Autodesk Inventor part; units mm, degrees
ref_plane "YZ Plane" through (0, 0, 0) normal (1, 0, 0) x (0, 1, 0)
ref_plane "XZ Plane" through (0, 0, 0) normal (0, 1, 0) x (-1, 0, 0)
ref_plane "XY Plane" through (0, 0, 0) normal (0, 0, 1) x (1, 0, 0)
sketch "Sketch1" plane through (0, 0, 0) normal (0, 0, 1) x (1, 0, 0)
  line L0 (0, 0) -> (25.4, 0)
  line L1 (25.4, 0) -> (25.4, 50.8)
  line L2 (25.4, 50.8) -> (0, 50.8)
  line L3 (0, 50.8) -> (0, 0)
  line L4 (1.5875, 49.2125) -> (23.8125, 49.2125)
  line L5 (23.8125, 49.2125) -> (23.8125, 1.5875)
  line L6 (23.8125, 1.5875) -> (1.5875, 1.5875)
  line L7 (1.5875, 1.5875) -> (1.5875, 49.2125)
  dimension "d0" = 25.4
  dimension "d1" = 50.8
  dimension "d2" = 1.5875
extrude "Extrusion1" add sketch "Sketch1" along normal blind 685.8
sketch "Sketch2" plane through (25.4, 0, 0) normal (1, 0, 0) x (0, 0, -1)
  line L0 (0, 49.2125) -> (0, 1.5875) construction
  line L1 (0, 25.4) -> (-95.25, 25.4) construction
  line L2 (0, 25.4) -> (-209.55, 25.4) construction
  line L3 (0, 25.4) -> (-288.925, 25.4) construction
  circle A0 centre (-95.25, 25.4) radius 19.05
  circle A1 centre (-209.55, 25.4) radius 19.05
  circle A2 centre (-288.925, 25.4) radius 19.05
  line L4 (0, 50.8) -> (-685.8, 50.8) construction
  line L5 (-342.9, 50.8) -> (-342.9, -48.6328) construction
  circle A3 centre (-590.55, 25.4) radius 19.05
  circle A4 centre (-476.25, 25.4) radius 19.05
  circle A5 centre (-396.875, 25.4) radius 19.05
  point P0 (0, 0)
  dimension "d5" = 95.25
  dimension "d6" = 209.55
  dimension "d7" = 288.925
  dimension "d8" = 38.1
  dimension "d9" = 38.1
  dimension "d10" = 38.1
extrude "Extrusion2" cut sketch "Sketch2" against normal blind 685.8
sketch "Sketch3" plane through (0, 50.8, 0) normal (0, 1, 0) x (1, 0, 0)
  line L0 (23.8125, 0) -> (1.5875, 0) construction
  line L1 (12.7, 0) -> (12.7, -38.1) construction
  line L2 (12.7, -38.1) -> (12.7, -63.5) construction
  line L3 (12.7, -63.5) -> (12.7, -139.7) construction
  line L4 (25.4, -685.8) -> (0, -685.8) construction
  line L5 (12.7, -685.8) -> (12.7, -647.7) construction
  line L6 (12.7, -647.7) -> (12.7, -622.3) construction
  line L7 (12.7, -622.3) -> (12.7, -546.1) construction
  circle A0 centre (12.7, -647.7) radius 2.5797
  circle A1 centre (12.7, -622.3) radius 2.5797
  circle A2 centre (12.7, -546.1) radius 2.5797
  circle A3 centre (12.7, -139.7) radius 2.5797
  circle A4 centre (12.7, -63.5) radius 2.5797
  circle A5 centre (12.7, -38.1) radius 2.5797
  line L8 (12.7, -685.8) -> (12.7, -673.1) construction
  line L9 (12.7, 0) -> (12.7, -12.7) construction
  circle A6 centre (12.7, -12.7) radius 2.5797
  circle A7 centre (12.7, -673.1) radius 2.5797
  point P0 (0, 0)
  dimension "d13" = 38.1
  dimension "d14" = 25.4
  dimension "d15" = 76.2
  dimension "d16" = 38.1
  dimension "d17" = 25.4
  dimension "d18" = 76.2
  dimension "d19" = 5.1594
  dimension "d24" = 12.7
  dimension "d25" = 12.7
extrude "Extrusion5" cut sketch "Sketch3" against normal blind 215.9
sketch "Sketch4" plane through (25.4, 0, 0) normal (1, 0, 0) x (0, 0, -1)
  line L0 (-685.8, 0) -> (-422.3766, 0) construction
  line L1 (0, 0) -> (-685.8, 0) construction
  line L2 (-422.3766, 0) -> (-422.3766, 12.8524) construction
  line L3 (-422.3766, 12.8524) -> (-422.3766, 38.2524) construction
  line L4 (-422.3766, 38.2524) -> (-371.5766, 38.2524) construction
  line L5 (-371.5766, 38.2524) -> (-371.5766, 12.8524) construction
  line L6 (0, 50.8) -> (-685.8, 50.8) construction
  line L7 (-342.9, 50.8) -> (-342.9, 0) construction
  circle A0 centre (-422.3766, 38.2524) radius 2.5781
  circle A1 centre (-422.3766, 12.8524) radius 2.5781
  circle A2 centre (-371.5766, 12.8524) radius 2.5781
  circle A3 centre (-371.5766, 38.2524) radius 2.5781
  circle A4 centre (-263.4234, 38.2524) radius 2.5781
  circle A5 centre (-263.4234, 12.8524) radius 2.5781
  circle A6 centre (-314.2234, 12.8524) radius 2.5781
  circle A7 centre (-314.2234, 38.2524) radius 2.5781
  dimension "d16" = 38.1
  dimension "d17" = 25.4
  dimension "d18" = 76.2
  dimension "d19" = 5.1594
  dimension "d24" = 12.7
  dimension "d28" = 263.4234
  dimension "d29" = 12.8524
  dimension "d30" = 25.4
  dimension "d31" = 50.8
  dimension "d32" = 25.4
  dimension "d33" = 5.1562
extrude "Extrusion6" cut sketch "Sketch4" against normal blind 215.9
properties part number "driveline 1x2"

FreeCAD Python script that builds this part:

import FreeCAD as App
import Part
import Sketcher

V = App.Vector
Q = App.Units.Quantity


def add_polygon(sketch, points):
    """Adds a closed chain of lines whose ends are joined by coincident constraints."""
    first, n = sketch.GeometryCount, len(points)
    for a, b in zip(points, points[1:] + points[:1]):
        sketch.addGeometry(Part.LineSegment(App.Vector(*a, 0), App.Vector(*b, 0)), False)
    for i in range(n):
        sketch.addConstraint(Sketcher.Constraint("Coincident", first + i, 2, first + (i + 1) % n, 1))

doc = App.newDocument("Part")
body = doc.addObject("PartDesign::Body", "Body")

# Sketch on XY plane
sketch1 = doc.addObject("Sketcher::SketchObject", "Sketch")
body.addObject(sketch1)
sketch1.AttachmentSupport = (doc.XY_Plane, [""])
sketch1.MapMode = "FlatFace"
add_polygon(sketch1, [(0, 51), (0, 0), (25, 0), (25, 51)])  # lines 0-3
add_polygon(sketch1, [(2, 2), (2, 49), (24, 49), (24, 2)])  # lines 4-7
sketch1.addConstraint([
    Sketcher.Constraint("Vertical", 0),
    Sketcher.Constraint("Horizontal", 1),
    Sketcher.Constraint("Vertical", 2),
    Sketcher.Constraint("Horizontal", 3),
    Sketcher.Constraint("Vertical", 4),
    Sketcher.Constraint("Horizontal", 5),
    Sketcher.Constraint("Vertical", 6),
    Sketcher.Constraint("Horizontal", 7),
    Sketcher.Constraint("Coincident", 0, 2, -1, 1),
    Sketcher.Constraint("DistanceX", 1, 1, 1, 2, Q("1 in")),
    Sketcher.Constraint("DistanceY", 0, 2, 0, 1, Q("2 in")),
    Sketcher.Constraint("DistanceX", -1, 1, 4, 2, Q("0.0625 in")),
    Sketcher.Constraint("DistanceY", -1, 1, 6, 2, Q("0.0625 in")),
    Sketcher.Constraint("DistanceY", 4, 2, 3, 2, Q("0.0625 in")),
    Sketcher.Constraint("DistanceX", 5, 2, 2, 2, Q("0.0625 in")),
])
pad1 = doc.addObject("PartDesign::Pad", "Pad")
body.addObject(pad1)
pad1.Profile = sketch1
pad1.Length = Q("27 in")

# Sketch on YZ plane
sketch2 = doc.addObject("Sketcher::SketchObject", "Sketch001")
body.addObject(sketch2)
sketch2.AttachmentSupport = (doc.YZ_Plane, [""])
sketch2.MapMode = "FlatFace"
sketch2.AttachmentOffset = App.Placement(V(0, 0, 1 * 25.4), App.Rotation())
sketch2.addGeometry([
    Part.Circle(V(25, 95, 0), V(0, 0, 1), 19),  # 0
    Part.Circle(V(25, 210, 0), V(0, 0, 1), 19),  # 1
    Part.Circle(V(25, 289, 0), V(0, 0, 1), 19),  # 2
    Part.Circle(V(25, 591, 0), V(0, 0, 1), 19),  # 3
    Part.Circle(V(25, 476, 0), V(0, 0, 1), 19),  # 4
    Part.Circle(V(25, 397, 0), V(0, 0, 1), 19),  # 5
], False)
sketch2.addConstraint([
    Sketcher.Constraint("Equal", 0, 1),
    Sketcher.Constraint("Equal", 1, 2),
    Sketcher.Constraint("Equal", 2, 3),
    Sketcher.Constraint("Equal", 3, 4),
    Sketcher.Constraint("Equal", 4, 5),
    Sketcher.Constraint("Vertical", 0, 3, 1, 3),
    Sketcher.Constraint("Vertical", 1, 3, 2, 3),
    Sketcher.Constraint("Vertical", 2, 3, 3, 3),
    Sketcher.Constraint("Vertical", 3, 3, 4, 3),
    Sketcher.Constraint("Vertical", 4, 3, 5, 3),
    Sketcher.Constraint("Diameter", 0, Q("1.5 in")),
    Sketcher.Constraint("DistanceY", -1, 1, 0, 3, Q("3.75 in")),
    Sketcher.Constraint("DistanceY", -1, 1, 1, 3, Q("8.25 in")),
    Sketcher.Constraint("DistanceX", -1, 1, 0, 3, Q("1 in")),
    Sketcher.Constraint("DistanceY", -1, 1, 2, 3, Q("11.375 in")),
    Sketcher.Constraint("DistanceY", 1, 3, 3, 3, Q("15 in")),
    Sketcher.Constraint("DistanceY", 0, 3, 4, 3, Q("15 in")),
    Sketcher.Constraint("DistanceY", 2, 3, 5, 3, Q("4.25 in")),
])
pocket1 = doc.addObject("PartDesign::Pocket", "Pocket")
body.addObject(pocket1)
pocket1.Profile = sketch2
pocket1.Length = Q("27 in")

# Sketch on XZ plane
sketch3 = doc.addObject("Sketcher::SketchObject", "Sketch002")
body.addObject(sketch3)
sketch3.AttachmentSupport = (doc.XZ_Plane, [""])
sketch3.MapMode = "FlatFace"
sketch3.AttachmentOffset = App.Placement(V(0, 0, -2 * 25.4), App.Rotation())
sketch3.addGeometry([
    Part.Circle(V(12.7, 647.7, 0), V(0, 0, 1), 2.6),  # 0
    Part.Circle(V(12.7, 622.3, 0), V(0, 0, 1), 2.6),  # 1
    Part.Circle(V(12.7, 546.1, 0), V(0, 0, 1), 2.6),  # 2
    Part.Circle(V(12.7, 139.7, 0), V(0, 0, 1), 2.6),  # 3
    Part.Circle(V(12.7, 63.5, 0), V(0, 0, 1), 2.6),  # 4
    Part.Circle(V(12.7, 38.1, 0), V(0, 0, 1), 2.6),  # 5
    Part.Circle(V(12.7, 12.7, 0), V(0, 0, 1), 2.6),  # 6
    Part.Circle(V(12.7, 673.1, 0), V(0, 0, 1), 2.6),  # 7
], False)
sketch3.addConstraint([
    Sketcher.Constraint("Equal", 0, 1),
    Sketcher.Constraint("Equal", 1, 2),
    Sketcher.Constraint("Equal", 2, 3),
    Sketcher.Constraint("Equal", 3, 4),
    Sketcher.Constraint("Equal", 4, 5),
    Sketcher.Constraint("Equal", 5, 6),
    Sketcher.Constraint("Equal", 6, 7),
    Sketcher.Constraint("Vertical", 0, 3, 1, 3),
    Sketcher.Constraint("Vertical", 1, 3, 2, 3),
    Sketcher.Constraint("Vertical", 2, 3, 3, 3),
    Sketcher.Constraint("Vertical", 3, 3, 4, 3),
    Sketcher.Constraint("Vertical", 4, 3, 5, 3),
    Sketcher.Constraint("Vertical", 5, 3, 6, 3),
    Sketcher.Constraint("Vertical", 6, 3, 7, 3),
    Sketcher.Constraint("Diameter", 0, Q("0.203126 in")),
    Sketcher.Constraint("DistanceY", 1, 3, 0, 3, Q("1 in")),
    Sketcher.Constraint("DistanceY", 2, 3, 1, 3, Q("3 in")),
    Sketcher.Constraint("DistanceY", 4, 3, 3, 3, Q("3 in")),
    Sketcher.Constraint("DistanceY", 5, 3, 4, 3, Q("1 in")),
    Sketcher.Constraint("DistanceY", 6, 3, 5, 3, Q("1 in")),
    Sketcher.Constraint("DistanceY", 0, 3, 7, 3, Q("1 in")),
    Sketcher.Constraint("DistanceX", -1, 1, 0, 3, Q("0.5 in")),
    Sketcher.Constraint("DistanceY", -1, 1, 5, 3, Q("1.5 in")),
    Sketcher.Constraint("DistanceY", 3, 3, 2, 3, Q("16 in")),
])
pocket2 = doc.addObject("PartDesign::Pocket", "Pocket001")
body.addObject(pocket2)
pocket2.Profile = sketch3
pocket2.Length = Q("8.5 in")
pocket2.Reversed = True

# Sketch on YZ plane
sketch4 = doc.addObject("Sketcher::SketchObject", "Sketch003")
body.addObject(sketch4)
sketch4.AttachmentSupport = (doc.YZ_Plane, [""])
sketch4.MapMode = "FlatFace"
sketch4.AttachmentOffset = App.Placement(V(0, 0, 1 * 25.4), App.Rotation())
sketch4.addGeometry([
    Part.Circle(V(38.3, 422.4, 0), V(0, 0, 1), 2.6),  # 0
    Part.Circle(V(12.9, 422.4, 0), V(0, 0, 1), 2.6),  # 1
    Part.Circle(V(12.9, 371.6, 0), V(0, 0, 1), 2.6),  # 2
    Part.Circle(V(38.3, 371.6, 0), V(0, 0, 1), 2.6),  # 3
    Part.Circle(V(38.3, 263.4, 0), V(0, 0, 1), 2.6),  # 4
    Part.Circle(V(12.9, 263.4, 0), V(0, 0, 1), 2.6),  # 5
    Part.Circle(V(12.9, 314.2, 0), V(0, 0, 1), 2.6),  # 6
    Part.Circle(V(38.3, 314.2, 0), V(0, 0, 1), 2.6),  # 7
], False)
sketch4.addConstraint([
    Sketcher.Constraint("Equal", 0, 1),
    Sketcher.Constraint("Equal", 1, 2),
    Sketcher.Constraint("Equal", 2, 3),
    Sketcher.Constraint("Equal", 3, 4),
    Sketcher.Constraint("Equal", 4, 5),
    Sketcher.Constraint("Equal", 5, 6),
    Sketcher.Constraint("Equal", 6, 7),
    Sketcher.Constraint("Horizontal", 0, 3, 1, 3),
    Sketcher.Constraint("Horizontal", 2, 3, 3, 3),
    Sketcher.Constraint("Horizontal", 4, 3, 5, 3),
    Sketcher.Constraint("Horizontal", 6, 3, 7, 3),
    Sketcher.Constraint("Vertical", 1, 3, 2, 3),
    Sketcher.Constraint("Vertical", 0, 3, 3, 3),
    Sketcher.Constraint("Vertical", 3, 3, 4, 3),
    Sketcher.Constraint("Vertical", 2, 3, 5, 3),
    Sketcher.Constraint("Vertical", 5, 3, 6, 3),
    Sketcher.Constraint("Vertical", 4, 3, 7, 3),
    Sketcher.Constraint("Diameter", 0, Q("0.203 in")),
    Sketcher.Constraint("DistanceX", 1, 3, 0, 3, Q("1 in")),
    Sketcher.Constraint("DistanceY", 2, 3, 1, 3, Q("2 in")),
    Sketcher.Constraint("DistanceY", 5, 3, 6, 3, Q("2 in")),
    Sketcher.Constraint("DistanceX", -1, 1, 1, 3, Q("0.506 in")),
    Sketcher.Constraint("DistanceY", -1, 1, 4, 3, Q("10.371 in")),
    Sketcher.Constraint("DistanceY", -1, 1, 0, 3, Q("16.629 in")),
])
pocket3 = doc.addObject("PartDesign::Pocket", "Pocket002")
body.addObject(pocket3)
pocket3.Profile = sketch4
pocket3.Length = Q("8.5 in")

doc.recompute()
